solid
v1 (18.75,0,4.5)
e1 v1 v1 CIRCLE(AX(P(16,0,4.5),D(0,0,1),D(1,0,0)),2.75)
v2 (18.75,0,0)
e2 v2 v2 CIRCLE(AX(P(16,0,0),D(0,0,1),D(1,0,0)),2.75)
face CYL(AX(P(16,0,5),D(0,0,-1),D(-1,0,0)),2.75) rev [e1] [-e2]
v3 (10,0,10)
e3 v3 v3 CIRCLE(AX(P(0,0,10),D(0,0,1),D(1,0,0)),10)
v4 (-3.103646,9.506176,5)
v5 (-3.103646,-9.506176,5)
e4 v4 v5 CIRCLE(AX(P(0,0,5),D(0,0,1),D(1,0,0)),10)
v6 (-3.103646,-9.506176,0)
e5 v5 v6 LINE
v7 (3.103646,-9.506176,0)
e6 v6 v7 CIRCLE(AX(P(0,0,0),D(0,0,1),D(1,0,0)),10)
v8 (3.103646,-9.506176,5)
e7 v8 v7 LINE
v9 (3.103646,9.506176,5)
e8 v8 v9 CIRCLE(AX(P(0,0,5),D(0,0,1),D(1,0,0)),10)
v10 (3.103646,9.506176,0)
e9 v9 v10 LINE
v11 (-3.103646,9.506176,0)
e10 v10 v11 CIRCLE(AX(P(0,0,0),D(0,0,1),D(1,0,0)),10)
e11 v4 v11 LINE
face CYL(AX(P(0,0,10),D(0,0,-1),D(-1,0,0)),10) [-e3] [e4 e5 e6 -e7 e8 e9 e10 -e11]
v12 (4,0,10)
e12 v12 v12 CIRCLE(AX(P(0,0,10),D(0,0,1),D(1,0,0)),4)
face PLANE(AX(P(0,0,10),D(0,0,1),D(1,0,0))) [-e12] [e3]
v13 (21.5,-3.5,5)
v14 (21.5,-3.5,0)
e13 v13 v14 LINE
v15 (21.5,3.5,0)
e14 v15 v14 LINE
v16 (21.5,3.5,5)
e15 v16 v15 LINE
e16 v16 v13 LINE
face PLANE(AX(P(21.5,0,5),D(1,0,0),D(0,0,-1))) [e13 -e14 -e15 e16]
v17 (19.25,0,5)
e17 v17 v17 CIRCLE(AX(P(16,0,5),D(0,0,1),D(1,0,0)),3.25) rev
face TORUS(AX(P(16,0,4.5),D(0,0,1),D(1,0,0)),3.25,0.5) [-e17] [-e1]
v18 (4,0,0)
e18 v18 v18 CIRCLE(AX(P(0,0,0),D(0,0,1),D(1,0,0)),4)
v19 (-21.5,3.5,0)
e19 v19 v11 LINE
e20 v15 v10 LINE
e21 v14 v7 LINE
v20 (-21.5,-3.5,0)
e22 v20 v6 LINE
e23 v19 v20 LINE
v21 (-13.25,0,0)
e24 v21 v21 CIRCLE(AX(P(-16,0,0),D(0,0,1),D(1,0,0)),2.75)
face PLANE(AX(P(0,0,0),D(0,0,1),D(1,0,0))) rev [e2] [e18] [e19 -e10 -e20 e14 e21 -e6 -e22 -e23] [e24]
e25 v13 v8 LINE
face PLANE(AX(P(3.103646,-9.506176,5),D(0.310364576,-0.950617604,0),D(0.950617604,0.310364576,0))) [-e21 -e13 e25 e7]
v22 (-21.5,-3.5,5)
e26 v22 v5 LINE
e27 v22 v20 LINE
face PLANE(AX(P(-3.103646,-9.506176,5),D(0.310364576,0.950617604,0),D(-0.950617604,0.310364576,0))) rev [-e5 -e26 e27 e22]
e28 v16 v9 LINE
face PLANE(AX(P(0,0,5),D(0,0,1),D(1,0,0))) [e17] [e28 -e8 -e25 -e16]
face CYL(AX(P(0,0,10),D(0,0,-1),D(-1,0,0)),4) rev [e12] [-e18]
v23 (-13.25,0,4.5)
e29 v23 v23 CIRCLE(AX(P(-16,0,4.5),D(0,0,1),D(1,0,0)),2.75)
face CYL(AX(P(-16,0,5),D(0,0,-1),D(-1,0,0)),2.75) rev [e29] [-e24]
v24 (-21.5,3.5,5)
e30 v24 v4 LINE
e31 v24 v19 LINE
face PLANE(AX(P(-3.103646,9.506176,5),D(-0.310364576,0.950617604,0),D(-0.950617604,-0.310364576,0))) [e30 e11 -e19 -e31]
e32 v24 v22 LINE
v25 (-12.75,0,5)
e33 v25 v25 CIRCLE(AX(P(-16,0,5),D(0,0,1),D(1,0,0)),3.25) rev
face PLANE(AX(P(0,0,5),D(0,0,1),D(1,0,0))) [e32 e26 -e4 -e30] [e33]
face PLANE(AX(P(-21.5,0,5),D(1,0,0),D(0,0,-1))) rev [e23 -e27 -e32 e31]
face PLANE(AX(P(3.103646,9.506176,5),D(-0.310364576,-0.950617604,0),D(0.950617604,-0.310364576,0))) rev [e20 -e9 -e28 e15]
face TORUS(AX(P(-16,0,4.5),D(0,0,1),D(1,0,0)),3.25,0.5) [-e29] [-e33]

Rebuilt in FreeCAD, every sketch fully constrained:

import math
import FreeCAD as App
import Part
import Sketcher


def edges_at(feature, points):
    """Names of the edges that pass closest to the given points."""
    edges = feature.Shape.Edges
    near = lambda p: min(range(len(edges)), key=lambda i: edges[i].distToShape(Part.Vertex(*p))[0])
    return sorted({f"Edge{near(p) + 1}" for p in points})

doc = App.newDocument("Part")
body = doc.addObject("PartDesign::Body", "Body")

sketch1 = body.newObject("Sketcher::SketchObject", "Sketch")
sketch1.AttachmentSupport = (doc.getObject("XY_Plane"), [""])
sketch1.MapMode = "FlatFace"
sketch1.addGeometry(Part.LineSegment(App.Vector(21.5, 3.5, 0), App.Vector(3.1, 9.5, 0)), False)
sketch1.addGeometry(Part.ArcOfCircle(Part.Circle(App.Vector(0, 0, 0), App.Vector(0, 0, 1), 10), math.radians(0), math.radians(72)), False)
sketch1.addGeometry(Part.ArcOfCircle(Part.Circle(App.Vector(0, 0, 0), App.Vector(0, 0, 1), 10), math.radians(-72), math.radians(0)), False)
sketch1.addGeometry(Part.LineSegment(App.Vector(3.1, -9.5, 0), App.Vector(21.5, -3.5, 0)), False)
sketch1.addGeometry(Part.LineSegment(App.Vector(21.5, -3.5, 0), App.Vector(21.5, 3.5, 0)), False)
sketch1.addGeometry(Part.Circle(App.Vector(16, 0, 0), App.Vector(0, 0, 1), 2.8), False)
sketch1.addConstraint(Sketcher.Constraint("Tangent", 0, 2, 1, 2))
sketch1.addConstraint(Sketcher.Constraint("Tangent", 1, 1, 2, 2))
sketch1.addConstraint(Sketcher.Constraint("Tangent", 2, 1, 3, 1))
sketch1.addConstraint(Sketcher.Constraint("Coincident", 3, 2, 4, 1))
sketch1.addConstraint(Sketcher.Constraint("Coincident", 4, 2, 0, 1))
sketch1.addConstraint(Sketcher.Constraint("Vertical", 4))
sketch1.addConstraint(Sketcher.Constraint("Coincident", 1, 3, -1, 1))
sketch1.addConstraint(Sketcher.Constraint("Equal", 1, 2))
sketch1.addConstraint(Sketcher.Constraint("PointOnObject", 5, 3, -1))
sketch1.addConstraint(Sketcher.Constraint("PointOnObject", 1, 1, -1))
sketch1.addConstraint(Sketcher.Constraint("Vertical", 0, 2, 2, 1))
sketch1.addConstraint(Sketcher.Constraint("Radius", 1, 10.0))
sketch1.addConstraint(Sketcher.Constraint("Diameter", 5, 5.5))
sketch1.addConstraint(Sketcher.Constraint("DistanceY", 4, 1, 4, 2, 7.0))
sketch1.addConstraint(Sketcher.Constraint("DistanceX", -1, 1, 5, 3, 16.0))
sketch1.addConstraint(Sketcher.Constraint("DistanceX", -1, 1, 3, 2, 21.5))
pad1 = body.newObject("PartDesign::Pad", "Pad")
pad1.Profile = sketch1
pad1.Length = 5
body2 = doc.addObject("PartDesign::Body", "Body001")

sketch2 = body2.newObject("Sketcher::SketchObject", "Sketch001")
sketch2.AttachmentSupport = (doc.getObject("XY_Plane001"), [""])
sketch2.MapMode = "FlatFace"
sketch2.addGeometry(Part.LineSegment(App.Vector(-3.1, 9.5, 0), App.Vector(-21.5, 3.5, 0)), False)
sketch2.addGeometry(Part.LineSegment(App.Vector(-21.5, 3.5, 0), App.Vector(-21.5, -3.5, 0)), False)
sketch2.addGeometry(Part.LineSegment(App.Vector(-21.5, -3.5, 0), App.Vector(-3.1, -9.5, 0)), False)
sketch2.addGeometry(Part.ArcOfCircle(Part.Circle(App.Vector(0, 0, 0), App.Vector(0, 0, 1), 10), math.radians(108), math.radians(252)), False)
sketch2.addGeometry(Part.Circle(App.Vector(-16, 0, 0), App.Vector(0, 0, 1), 2.8), False)
sketch2.addConstraint(Sketcher.Constraint("Coincident", 0, 2, 1, 1))
sketch2.addConstraint(Sketcher.Constraint("Coincident", 1, 2, 2, 1))
sketch2.addConstraint(Sketcher.Constraint("Tangent", 2, 2, 3, 2))
sketch2.addConstraint(Sketcher.Constraint("Tangent", 3, 1, 0, 1))
sketch2.addConstraint(Sketcher.Constraint("Vertical", 1))
sketch2.addConstraint(Sketcher.Constraint("Coincident", 3, 3, -1, 1))
sketch2.addConstraint(Sketcher.Constraint("PointOnObject", 4, 3, -1))
sketch2.addConstraint(Sketcher.Constraint("Vertical", 2, 2, 3, 1))
sketch2.addConstraint(Sketcher.Constraint("Radius", 3, 10.0))
sketch2.addConstraint(Sketcher.Constraint("Diameter", 4, 5.5))
sketch2.addConstraint(Sketcher.Constraint("DistanceY", 1, 2, 1, 1, 7.0))
sketch2.addConstraint(Sketcher.Constraint("DistanceX", 4, 3, -1, 1, 16.0))
sketch2.addConstraint(Sketcher.Constraint("DistanceX", 0, 2, -1, 1, 21.5))
pad2 = body2.newObject("PartDesign::Pad", "Pad001")
pad2.Profile = sketch2
pad2.Length = 5
body.AllowCompound = True
doc.recompute()

boolean = body.newObject("PartDesign::Boolean", "Boolean")
boolean.Type = "Fuse"
boolean.addObjects([body2])

sketch3 = body.newObject("Sketcher::SketchObject", "Sketch002")
sketch3.AttachmentSupport = (doc.getObject("XY_Plane"), [""])
sketch3.MapMode = "FlatFace"
sketch3.addGeometry(Part.Circle(App.Vector(0, 0, 0), App.Vector(0, 0, 1), 10), False)
sketch3.addGeometry(Part.Circle(App.Vector(0, 0, 0), App.Vector(0, 0, 1), 4), False)
sketch3.addConstraint(Sketcher.Constraint("Coincident", 0, 3, -1, 1))
sketch3.addConstraint(Sketcher.Constraint("Coincident", 1, 3, -1, 1))
sketch3.addConstraint(Sketcher.Constraint("Diameter", 0, 20.0))
sketch3.addConstraint(Sketcher.Constraint("Diameter", 1, 8.0))
pad3 = body.newObject("PartDesign::Pad", "Pad002")
pad3.Profile = sketch3
pad3.Length = 10
doc.recompute()

fillet = body.newObject("PartDesign::Fillet", "Fillet")
fillet.Base = (pad3, edges_at(pad3, [(-18.75, 0, 5)]))
fillet.Radius = 0.5
doc.recompute()

fillet2 = body.newObject("PartDesign::Fillet", "Fillet001")
fillet2.Base = (fillet, edges_at(fillet, [(13.25, 0, 5)]))
fillet2.Radius = 0.5

doc.recompute()
